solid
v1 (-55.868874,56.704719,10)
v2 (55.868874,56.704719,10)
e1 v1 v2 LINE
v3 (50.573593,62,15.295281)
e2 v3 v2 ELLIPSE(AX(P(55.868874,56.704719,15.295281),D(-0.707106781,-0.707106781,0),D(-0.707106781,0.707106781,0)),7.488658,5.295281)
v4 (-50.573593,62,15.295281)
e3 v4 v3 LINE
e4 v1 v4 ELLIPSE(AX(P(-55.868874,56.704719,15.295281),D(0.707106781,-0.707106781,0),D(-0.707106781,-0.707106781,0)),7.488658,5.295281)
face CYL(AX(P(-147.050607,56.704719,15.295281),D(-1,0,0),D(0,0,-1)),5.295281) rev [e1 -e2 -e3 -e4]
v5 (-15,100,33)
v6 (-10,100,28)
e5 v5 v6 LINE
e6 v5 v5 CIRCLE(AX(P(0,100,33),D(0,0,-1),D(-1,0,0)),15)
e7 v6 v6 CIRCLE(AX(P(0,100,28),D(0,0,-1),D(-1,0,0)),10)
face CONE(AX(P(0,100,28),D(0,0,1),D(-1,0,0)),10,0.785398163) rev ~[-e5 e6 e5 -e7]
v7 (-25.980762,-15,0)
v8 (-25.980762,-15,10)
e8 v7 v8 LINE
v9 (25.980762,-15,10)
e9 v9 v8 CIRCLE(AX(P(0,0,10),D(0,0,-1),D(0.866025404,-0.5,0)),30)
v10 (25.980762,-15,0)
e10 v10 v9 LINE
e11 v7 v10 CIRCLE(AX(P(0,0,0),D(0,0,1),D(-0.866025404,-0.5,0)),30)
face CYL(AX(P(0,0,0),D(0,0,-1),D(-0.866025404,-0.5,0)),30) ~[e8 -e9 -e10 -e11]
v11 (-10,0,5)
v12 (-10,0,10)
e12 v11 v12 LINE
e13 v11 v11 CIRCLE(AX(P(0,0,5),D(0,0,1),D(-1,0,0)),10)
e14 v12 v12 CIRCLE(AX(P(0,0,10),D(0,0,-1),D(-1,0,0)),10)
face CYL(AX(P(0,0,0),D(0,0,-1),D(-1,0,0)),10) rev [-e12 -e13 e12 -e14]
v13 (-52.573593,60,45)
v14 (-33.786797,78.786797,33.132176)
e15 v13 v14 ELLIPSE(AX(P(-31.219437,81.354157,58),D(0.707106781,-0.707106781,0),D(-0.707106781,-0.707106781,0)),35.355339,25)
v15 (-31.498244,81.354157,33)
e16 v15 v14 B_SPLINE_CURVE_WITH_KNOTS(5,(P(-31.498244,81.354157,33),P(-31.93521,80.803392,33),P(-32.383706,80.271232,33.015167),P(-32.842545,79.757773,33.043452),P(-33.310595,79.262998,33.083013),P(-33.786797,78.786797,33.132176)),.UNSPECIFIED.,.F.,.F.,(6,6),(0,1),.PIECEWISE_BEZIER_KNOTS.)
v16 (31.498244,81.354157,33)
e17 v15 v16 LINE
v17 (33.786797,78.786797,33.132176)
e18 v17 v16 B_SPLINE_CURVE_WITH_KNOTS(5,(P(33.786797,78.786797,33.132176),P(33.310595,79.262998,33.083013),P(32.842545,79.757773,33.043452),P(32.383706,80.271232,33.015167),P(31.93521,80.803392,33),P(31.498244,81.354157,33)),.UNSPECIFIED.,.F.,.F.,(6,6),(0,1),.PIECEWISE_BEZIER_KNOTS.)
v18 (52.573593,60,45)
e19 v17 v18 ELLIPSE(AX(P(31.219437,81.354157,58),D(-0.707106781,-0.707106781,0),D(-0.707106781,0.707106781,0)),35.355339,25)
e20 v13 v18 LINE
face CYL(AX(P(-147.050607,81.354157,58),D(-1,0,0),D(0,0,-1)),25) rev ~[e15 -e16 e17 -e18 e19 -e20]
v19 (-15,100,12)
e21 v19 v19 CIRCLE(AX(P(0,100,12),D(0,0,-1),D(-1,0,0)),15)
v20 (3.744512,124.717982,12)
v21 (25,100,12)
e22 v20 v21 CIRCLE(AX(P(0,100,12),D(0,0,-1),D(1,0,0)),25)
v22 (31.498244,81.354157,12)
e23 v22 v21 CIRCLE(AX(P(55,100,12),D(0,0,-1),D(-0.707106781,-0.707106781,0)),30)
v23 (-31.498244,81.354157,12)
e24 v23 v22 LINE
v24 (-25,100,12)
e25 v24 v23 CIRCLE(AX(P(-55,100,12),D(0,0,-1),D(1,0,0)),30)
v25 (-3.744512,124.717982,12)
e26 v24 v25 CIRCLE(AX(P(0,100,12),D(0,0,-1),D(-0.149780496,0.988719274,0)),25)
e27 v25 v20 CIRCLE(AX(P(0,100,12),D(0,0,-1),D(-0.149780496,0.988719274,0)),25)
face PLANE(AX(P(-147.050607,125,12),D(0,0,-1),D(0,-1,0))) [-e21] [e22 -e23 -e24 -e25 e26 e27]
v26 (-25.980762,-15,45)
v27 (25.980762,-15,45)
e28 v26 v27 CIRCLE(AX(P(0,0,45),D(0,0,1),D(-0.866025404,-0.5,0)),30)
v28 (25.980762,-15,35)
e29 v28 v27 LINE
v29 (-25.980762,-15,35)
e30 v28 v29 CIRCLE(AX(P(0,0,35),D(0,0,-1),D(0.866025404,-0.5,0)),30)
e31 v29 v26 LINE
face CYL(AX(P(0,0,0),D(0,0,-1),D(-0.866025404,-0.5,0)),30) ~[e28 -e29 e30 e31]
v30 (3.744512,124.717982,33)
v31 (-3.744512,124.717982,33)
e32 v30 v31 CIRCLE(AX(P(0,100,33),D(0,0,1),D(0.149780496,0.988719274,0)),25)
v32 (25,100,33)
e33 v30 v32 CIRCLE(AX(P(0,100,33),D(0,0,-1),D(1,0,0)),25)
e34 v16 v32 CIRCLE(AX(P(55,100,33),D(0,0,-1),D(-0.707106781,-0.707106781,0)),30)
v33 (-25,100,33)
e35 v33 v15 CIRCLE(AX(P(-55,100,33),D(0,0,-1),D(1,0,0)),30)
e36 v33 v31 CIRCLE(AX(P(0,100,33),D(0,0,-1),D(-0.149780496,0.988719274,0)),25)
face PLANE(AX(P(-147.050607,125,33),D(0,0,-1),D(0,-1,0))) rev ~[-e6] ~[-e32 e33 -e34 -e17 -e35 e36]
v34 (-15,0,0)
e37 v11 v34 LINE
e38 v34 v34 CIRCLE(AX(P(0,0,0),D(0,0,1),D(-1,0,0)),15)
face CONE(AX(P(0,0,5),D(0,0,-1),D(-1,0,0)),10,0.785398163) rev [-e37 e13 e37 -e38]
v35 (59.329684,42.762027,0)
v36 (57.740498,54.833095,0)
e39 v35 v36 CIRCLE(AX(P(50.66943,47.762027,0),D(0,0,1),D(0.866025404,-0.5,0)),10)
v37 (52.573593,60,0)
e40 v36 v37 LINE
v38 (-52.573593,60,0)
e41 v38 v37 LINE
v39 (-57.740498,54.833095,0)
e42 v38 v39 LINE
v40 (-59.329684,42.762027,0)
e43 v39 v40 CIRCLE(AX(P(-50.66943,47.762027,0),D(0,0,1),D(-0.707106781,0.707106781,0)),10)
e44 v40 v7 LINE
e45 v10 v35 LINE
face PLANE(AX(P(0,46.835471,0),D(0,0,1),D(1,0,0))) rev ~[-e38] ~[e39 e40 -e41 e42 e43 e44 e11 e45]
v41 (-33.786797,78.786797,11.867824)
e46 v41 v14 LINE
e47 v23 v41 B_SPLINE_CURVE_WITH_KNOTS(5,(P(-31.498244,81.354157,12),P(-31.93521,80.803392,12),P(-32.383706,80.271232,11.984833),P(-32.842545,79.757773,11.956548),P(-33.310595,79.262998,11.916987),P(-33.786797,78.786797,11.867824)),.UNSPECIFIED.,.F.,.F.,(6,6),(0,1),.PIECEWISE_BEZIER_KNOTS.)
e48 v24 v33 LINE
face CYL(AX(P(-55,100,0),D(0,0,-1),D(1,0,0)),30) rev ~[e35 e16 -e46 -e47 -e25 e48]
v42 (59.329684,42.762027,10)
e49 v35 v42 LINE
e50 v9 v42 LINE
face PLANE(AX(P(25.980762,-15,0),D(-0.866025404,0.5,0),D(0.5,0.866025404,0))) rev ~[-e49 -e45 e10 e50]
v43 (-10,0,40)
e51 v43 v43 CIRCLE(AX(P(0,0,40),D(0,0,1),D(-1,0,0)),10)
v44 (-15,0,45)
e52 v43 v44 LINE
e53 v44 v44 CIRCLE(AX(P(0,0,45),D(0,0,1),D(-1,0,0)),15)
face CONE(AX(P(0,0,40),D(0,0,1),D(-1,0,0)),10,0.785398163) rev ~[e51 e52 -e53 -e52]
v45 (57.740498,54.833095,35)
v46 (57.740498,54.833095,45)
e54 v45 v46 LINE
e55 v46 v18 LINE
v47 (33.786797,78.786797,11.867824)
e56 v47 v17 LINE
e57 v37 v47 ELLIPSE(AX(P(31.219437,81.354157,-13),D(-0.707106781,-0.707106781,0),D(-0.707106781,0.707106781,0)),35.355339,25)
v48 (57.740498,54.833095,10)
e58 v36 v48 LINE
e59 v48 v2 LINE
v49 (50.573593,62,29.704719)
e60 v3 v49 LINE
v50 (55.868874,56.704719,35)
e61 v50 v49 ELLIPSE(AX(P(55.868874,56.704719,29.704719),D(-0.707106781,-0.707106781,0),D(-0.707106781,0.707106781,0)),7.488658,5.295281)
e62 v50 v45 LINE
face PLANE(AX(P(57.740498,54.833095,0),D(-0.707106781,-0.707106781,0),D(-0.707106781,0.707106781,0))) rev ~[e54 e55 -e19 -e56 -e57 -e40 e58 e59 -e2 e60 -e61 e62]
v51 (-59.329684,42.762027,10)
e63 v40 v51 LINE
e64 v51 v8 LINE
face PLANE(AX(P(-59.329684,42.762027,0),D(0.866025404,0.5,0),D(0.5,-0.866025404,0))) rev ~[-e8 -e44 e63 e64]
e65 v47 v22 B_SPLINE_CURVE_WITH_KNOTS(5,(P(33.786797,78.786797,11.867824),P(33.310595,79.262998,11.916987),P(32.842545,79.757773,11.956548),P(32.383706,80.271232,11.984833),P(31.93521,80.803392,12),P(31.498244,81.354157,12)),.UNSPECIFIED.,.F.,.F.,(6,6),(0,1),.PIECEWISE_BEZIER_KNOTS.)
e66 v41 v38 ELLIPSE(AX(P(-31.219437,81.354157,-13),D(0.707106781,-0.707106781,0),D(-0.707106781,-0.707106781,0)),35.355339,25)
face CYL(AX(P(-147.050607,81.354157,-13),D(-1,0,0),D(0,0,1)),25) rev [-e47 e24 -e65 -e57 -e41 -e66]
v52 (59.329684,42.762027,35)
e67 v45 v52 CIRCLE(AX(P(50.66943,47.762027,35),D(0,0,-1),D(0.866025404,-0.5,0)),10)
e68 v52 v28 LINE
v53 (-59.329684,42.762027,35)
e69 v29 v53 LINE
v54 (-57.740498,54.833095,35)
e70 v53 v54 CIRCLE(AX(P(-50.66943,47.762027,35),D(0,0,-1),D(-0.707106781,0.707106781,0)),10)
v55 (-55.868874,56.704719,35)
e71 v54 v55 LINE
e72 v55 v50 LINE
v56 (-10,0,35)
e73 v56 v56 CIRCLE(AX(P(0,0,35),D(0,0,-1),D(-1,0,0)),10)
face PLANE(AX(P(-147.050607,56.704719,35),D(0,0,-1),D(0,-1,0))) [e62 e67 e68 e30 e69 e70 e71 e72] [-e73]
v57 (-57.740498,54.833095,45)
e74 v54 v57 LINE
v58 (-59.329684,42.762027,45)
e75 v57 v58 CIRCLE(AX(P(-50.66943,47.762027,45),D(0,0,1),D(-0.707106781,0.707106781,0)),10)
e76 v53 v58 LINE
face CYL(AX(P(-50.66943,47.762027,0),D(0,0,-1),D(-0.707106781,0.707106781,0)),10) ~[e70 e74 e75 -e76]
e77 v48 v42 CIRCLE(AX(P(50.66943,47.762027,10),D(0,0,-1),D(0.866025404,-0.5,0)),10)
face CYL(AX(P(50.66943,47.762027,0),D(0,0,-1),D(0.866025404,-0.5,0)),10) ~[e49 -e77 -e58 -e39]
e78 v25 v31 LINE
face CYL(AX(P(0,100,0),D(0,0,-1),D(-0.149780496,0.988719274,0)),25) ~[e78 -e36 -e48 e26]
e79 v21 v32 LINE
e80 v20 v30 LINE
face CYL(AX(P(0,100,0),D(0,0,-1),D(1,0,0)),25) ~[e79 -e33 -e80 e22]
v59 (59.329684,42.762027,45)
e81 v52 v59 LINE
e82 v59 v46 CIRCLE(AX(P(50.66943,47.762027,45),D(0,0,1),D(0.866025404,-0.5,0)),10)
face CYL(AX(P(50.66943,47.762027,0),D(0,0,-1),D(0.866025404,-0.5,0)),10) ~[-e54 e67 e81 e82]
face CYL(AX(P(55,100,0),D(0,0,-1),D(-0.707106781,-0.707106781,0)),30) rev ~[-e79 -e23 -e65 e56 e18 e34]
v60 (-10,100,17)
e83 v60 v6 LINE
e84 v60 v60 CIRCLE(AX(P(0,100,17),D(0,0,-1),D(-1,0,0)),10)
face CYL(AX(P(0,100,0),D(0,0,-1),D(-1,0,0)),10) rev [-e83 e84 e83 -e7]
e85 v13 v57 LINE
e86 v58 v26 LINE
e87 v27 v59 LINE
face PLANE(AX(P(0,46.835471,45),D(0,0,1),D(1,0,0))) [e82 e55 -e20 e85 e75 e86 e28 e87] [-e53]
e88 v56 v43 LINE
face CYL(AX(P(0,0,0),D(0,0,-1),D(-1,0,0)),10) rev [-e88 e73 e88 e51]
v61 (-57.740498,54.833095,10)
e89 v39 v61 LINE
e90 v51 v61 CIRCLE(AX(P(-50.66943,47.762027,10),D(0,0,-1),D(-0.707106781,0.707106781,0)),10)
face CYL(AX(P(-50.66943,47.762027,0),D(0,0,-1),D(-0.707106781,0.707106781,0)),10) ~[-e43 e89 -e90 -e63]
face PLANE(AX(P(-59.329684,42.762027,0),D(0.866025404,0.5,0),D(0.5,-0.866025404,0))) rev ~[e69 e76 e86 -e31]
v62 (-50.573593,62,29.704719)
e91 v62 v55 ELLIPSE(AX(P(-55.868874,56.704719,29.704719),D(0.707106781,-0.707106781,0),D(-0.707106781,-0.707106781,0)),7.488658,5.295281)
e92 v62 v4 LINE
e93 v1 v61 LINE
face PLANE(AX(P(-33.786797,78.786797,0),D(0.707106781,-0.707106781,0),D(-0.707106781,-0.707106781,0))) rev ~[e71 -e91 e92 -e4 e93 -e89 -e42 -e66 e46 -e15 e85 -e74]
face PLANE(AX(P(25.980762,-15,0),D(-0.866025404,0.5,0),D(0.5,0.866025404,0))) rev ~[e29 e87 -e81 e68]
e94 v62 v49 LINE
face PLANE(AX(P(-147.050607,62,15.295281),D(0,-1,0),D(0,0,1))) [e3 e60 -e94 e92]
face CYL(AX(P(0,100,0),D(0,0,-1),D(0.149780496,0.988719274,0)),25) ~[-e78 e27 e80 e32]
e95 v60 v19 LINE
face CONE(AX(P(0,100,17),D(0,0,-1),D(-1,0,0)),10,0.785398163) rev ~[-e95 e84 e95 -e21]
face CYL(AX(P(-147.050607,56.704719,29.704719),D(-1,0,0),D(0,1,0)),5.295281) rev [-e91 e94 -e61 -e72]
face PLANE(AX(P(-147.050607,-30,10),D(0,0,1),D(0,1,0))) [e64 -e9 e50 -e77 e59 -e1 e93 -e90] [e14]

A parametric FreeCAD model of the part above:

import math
import FreeCAD as App
import Part
import Sketcher
Q = App.Units.Quantity


def edges_at(feature, points):
    """Names of the edges that pass closest to the given points."""
    edges = feature.Shape.Edges
    near = lambda p: min(range(len(edges)), key=lambda i: edges[i].distToShape(Part.Vertex(*p))[0])
    return sorted({f"Edge{near(p) + 1}" for p in points})

doc = App.newDocument("Part")
body = doc.addObject("PartDesign::Body", "Body")

sketch1 = body.newObject("Sketcher::SketchObject", "Sketch")
sketch1.AttachmentSupport = (doc.getObject("XY_Plane"), [""])
sketch1.MapMode = "FlatFace"
sketch1.addGeometry([
    Part.ArcOfCircle(Part.Circle(App.Vector(0, 0, 0), App.Vector(0, 0, 1), 30), math.radians(-150), math.radians(-30)),
    Part.LineSegment(App.Vector(25.980762, -15, 0), App.Vector(59.329684, 42.762027, 0)),
    Part.ArcOfCircle(Part.Circle(App.Vector(50.66943, 47.762027, 0), App.Vector(0, 0, 1), 10), math.radians(-30), math.radians(45)),
    Part.LineSegment(App.Vector(57.740498, 54.833095, 0), App.Vector(33.786797, 78.786797, 0)),
    Part.ArcOfCircle(Part.Circle(App.Vector(55, 100, 0), App.Vector(0, 0, 1), 30), math.radians(-180), math.radians(-135)),
    Part.ArcOfCircle(Part.Circle(App.Vector(0, 100, 0), App.Vector(0, 0, 1), 25), math.radians(0), math.radians(81.385794)),
    Part.ArcOfCircle(Part.Circle(App.Vector(0, 100, 0), App.Vector(0, 0, 1), 25), math.radians(81.385794), math.radians(98.614206)),
    Part.ArcOfCircle(Part.Circle(App.Vector(0, 100, 0), App.Vector(0, 0, 1), 25), math.radians(98.614206), math.radians(180)),
    Part.ArcOfCircle(Part.Circle(App.Vector(-55, 100, 0), App.Vector(0, 0, 1), 30), math.radians(-45), math.radians(0)),
    Part.LineSegment(App.Vector(-33.786797, 78.786797, 0), App.Vector(-57.740498, 54.833095, 0)),
    Part.ArcOfCircle(Part.Circle(App.Vector(-50.66943, 47.762027, 0), App.Vector(0, 0, 1), 10), math.radians(135), math.radians(210)),
    Part.LineSegment(App.Vector(-59.329684, 42.762027, 0), App.Vector(-25.980762, -15, 0)),
    Part.Circle(App.Vector(0, 0, 0), App.Vector(0, 0, 1), 10),
    Part.Circle(App.Vector(0, 100, 0), App.Vector(0, 0, 1), 10),
], False)
sketch1.addConstraint([
    Sketcher.Constraint("Tangent", 0, 2, 1, 1),
    Sketcher.Constraint("Tangent", 1, 2, 2, 1),
    Sketcher.Constraint("Tangent", 2, 2, 3, 1),
    Sketcher.Constraint("Tangent", 3, 2, 4, 2),
    Sketcher.Constraint("Tangent", 4, 1, 5, 1),
    Sketcher.Constraint("Tangent", 5, 2, 6, 1),
    Sketcher.Constraint("Tangent", 6, 2, 7, 1),
    Sketcher.Constraint("Tangent", 7, 2, 8, 2),
    Sketcher.Constraint("Tangent", 8, 1, 9, 1),
    Sketcher.Constraint("Tangent", 9, 2, 10, 1),
    Sketcher.Constraint("Tangent", 10, 2, 11, 1),
    Sketcher.Constraint("Tangent", 11, 2, 0, 1),
    Sketcher.Constraint("Coincident", 0, 3, -1, 1),
    Sketcher.Constraint("Coincident", 12, 3, -1, 1),
    Sketcher.Constraint("Coincident", 7, 3, 5, 3),
    Sketcher.Constraint("Coincident", 13, 3, 5, 3),
    Sketcher.Constraint("Equal", 0, 4),
    Sketcher.Constraint("Equal", 4, 8),
    Sketcher.Constraint("Equal", 2, 10),
    Sketcher.Constraint("Equal", 10, 12),
    Sketcher.Constraint("Equal", 12, 13),
    Sketcher.Constraint("Symmetric", 4, 3, 8, 3, -2),
    Sketcher.Constraint("Symmetric", 2, 3, 10, 3, -2),
    Sketcher.Constraint("Perpendicular", 3, 9),
    Sketcher.Constraint("Horizontal", 4, 3, 5, 3),
    Sketcher.Constraint("Horizontal", 5, 2, 6, 2),
    Sketcher.Constraint("Diameter", 12, Q("20 mm")),
    Sketcher.Constraint("Radius", 0, Q("30 mm")),
    Sketcher.Constraint("Radius", 5, Q("25 mm")),
    Sketcher.Constraint("Angle", 1, Q("60 deg")),
    Sketcher.Constraint("DistanceY", -1, 1, 4, 3, Q("100 mm")),
    Sketcher.Constraint("DistanceY", -1, 1, 5, 2, Q("124.717982 mm")),
])
pad1 = body.newObject("PartDesign::Pad", "Pad")
pad1.Profile = sketch1
pad1.Length = 45

sketch2 = body.newObject("Sketcher::SketchObject", "Sketch001")
sketch2.AttachmentSupport = (doc.getObject("YZ_Plane"), [""])
sketch2.MapMode = "FlatFace"
sketch2.addGeometry([
    Part.LineSegment(App.Vector(125, 12, 0), App.Vector(81.354157, 12, 0)),
    Part.ArcOfCircle(Part.Circle(App.Vector(81.354157, -13, 0), App.Vector(0, 0, 1), 25), math.radians(90), math.radians(148.667749)),
    Part.LineSegment(App.Vector(60, 0, 0), App.Vector(125, 0, 0)),
    Part.LineSegment(App.Vector(125, 0, 0), App.Vector(125, 12, 0)),
    Part.LineSegment(App.Vector(-30, 35, 0), App.Vector(-30, 10, 0)),
    Part.LineSegment(App.Vector(-30, 10, 0), App.Vector(56.704719, 10, 0)),
    Part.ArcOfCircle(Part.Circle(App.Vector(56.704719, 15.295281, 0), App.Vector(0, 0, 1), 5.295281), math.radians(-90), math.radians(0)),
    Part.LineSegment(App.Vector(62, 15.295281, 0), App.Vector(62, 29.704719, 0)),
    Part.ArcOfCircle(Part.Circle(App.Vector(56.704719, 29.704719, 0), App.Vector(0, 0, 1), 5.295281), math.radians(0), math.radians(90)),
    Part.LineSegment(App.Vector(56.704719, 35, 0), App.Vector(-30, 35, 0)),
    Part.LineSegment(App.Vector(81.354157, 33, 0), App.Vector(125, 33, 0)),
    Part.LineSegment(App.Vector(125, 33, 0), App.Vector(125, 45, 0)),
    Part.LineSegment(App.Vector(125, 45, 0), App.Vector(60, 45, 0)),
    Part.ArcOfCircle(Part.Circle(App.Vector(81.354157, 58, 0), App.Vector(0, 0, 1), 25), math.radians(-148.667749), math.radians(-90)),
], False)
sketch2.addConstraint([
    Sketcher.Constraint("Tangent", 0, 2, 1, 1),
    Sketcher.Constraint("Coincident", 1, 2, 2, 1),
    Sketcher.Constraint("Coincident", 2, 2, 3, 1),
    Sketcher.Constraint("Coincident", 3, 2, 0, 1),
    Sketcher.Constraint("Coincident", 4, 2, 5, 1),
    Sketcher.Constraint("Tangent", 5, 2, 6, 1),
    Sketcher.Constraint("Tangent", 6, 2, 7, 1),
    Sketcher.Constraint("Tangent", 7, 2, 8, 1),
    Sketcher.Constraint("Tangent", 8, 2, 9, 1),
    Sketcher.Constraint("Coincident", 9, 2, 4, 1),
    Sketcher.Constraint("Coincident", 10, 2, 11, 1),
    Sketcher.Constraint("Coincident", 11, 2, 12, 1),
    Sketcher.Constraint("Coincident", 12, 2, 13, 1),
    Sketcher.Constraint("Tangent", 13, 2, 10, 1),
    Sketcher.Constraint("Horizontal", 0),
    Sketcher.Constraint("Horizontal", 2),
    Sketcher.Constraint("Vertical", 3),
    Sketcher.Constraint("Vertical", 4),
    Sketcher.Constraint("Horizontal", 5),
    Sketcher.Constraint("Vertical", 7),
    Sketcher.Constraint("Horizontal", 9),
    Sketcher.Constraint("Horizontal", 10),
    Sketcher.Constraint("Vertical", 11),
    Sketcher.Constraint("Horizontal", 12),
    Sketcher.Constraint("Equal", 6, 8),
    Sketcher.Constraint("Equal", 1, 13),
    Sketcher.Constraint("PointOnObject", 1, 2, -1),
    Sketcher.Constraint("Vertical", 1, 3, 13, 3),
    Sketcher.Constraint("Vertical", 3, 2, 10, 2),
    Sketcher.Constraint("Vertical", 1, 2, 12, 2),
    Sketcher.Constraint("Radius", 1, Q("25 mm")),
    Sketcher.Constraint("DistanceX", 2, 1, 2, 2, Q("65 mm")),
    Sketcher.Constraint("DistanceY", 3, 1, 3, 2, Q("12 mm")),
    Sketcher.Constraint("DistanceY", 4, 2, 4, 1, Q("25 mm")),
    Sketcher.Constraint("DistanceY", -1, 1, 13, 3, Q("58 mm")),
    Sketcher.Constraint("DistanceX", -1, 1, 1, 2, Q("60 mm")),
    Sketcher.Constraint("DistanceX", 4, 2, -1, 1, Q("30 mm")),
    Sketcher.Constraint("DistanceY", -1, 1, 4, 2, Q("10 mm")),
    Sketcher.Constraint("DistanceX", -1, 1, 6, 2, Q("62 mm")),
    Sketcher.Constraint("Radius", 6, Q("5.295281 mm")),
])
pocket1 = body.newObject("PartDesign::Pocket", "Pocket")
pocket1.Profile = sketch2
pocket1.Type = "ThroughAll"
pocket1.Midplane = True
doc.recompute()

chamfer = body.newObject("PartDesign::Chamfer", "Chamfer")
chamfer.Base = (pocket1, edges_at(pocket1, [
    (10, 100, 12),
    (10, 0, 0),
    (10, 0, 45),
    (10, 100, 33),
]))
chamfer.Size = 5

doc.recompute()
